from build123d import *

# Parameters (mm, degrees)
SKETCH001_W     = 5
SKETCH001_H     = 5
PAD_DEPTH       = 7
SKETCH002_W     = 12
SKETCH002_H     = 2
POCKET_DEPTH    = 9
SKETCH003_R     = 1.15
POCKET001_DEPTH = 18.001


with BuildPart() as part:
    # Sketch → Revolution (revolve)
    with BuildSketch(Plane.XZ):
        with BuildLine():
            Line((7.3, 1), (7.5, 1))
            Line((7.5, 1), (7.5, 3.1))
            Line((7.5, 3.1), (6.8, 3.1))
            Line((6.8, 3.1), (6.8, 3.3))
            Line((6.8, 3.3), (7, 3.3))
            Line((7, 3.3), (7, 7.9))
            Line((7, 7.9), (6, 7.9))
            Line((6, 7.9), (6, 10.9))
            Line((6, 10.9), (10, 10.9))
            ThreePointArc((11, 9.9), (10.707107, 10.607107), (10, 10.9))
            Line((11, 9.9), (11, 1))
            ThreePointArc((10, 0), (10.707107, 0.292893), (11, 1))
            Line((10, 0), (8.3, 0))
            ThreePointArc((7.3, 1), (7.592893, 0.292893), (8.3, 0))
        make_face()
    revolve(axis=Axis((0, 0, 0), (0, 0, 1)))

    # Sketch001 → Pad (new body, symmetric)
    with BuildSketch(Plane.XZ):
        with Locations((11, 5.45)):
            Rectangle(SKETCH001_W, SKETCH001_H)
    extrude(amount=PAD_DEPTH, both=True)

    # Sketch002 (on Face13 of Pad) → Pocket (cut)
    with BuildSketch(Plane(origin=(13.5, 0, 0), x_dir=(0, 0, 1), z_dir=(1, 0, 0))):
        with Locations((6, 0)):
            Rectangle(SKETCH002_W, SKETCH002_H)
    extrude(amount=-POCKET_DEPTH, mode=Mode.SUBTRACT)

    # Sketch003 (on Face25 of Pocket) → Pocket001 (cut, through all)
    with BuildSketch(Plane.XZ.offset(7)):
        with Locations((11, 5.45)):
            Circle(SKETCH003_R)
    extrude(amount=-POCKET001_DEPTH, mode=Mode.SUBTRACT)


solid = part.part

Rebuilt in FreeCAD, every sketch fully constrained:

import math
import FreeCAD as App
import Part
import Sketcher
from FreeCAD import Vector

doc = App.newDocument("Part")
params = doc.addObject("Spreadsheet::Sheet", "Params")
for row, (alias, value) in enumerate([
    ("sketch1_radius", "0.999999 mm"),
    ("sketch1_width", "4 mm"),
    ("sketch1_width2", "1 mm"),
    ("sketch1_height", "3 mm"),
    ("sketch1_width3", "0.2 mm"),
    ("revolution_angle", "360 deg"),
    ("sketch2_width", "5 mm"),
    ("pad1_length", "14 mm"),
    ("sketch3_width", "2 mm"),
    ("sketch3_height", "12 mm"),
    ("pocket1_length", "9 mm"),
    ("sketch4_diameter", "2.3 mm"),
], start=1):
    params.set(f"A{row}", alias)
    params.set(f"B{row}", "=" + value)
    params.setAlias(f"B{row}", alias)

body = doc.addObject("PartDesign::Body", "Body")

# Sketch on XZ plane
sketch1 = body.newObject("Sketcher::SketchObject", "Sketch")
sketch1.AttachmentSupport = (doc.getObject("XZ_Plane"), [""])
sketch1.MapMode = "FlatFace"
sketch1.addGeometry([
    Part.LineSegment(Vector(7.5, 1, 0), Vector(7.3, 1, 0)),  # 0
    Part.ArcOfCircle(Part.Circle(Vector(8.3, 1, 0), Vector(0, 0, 1), 1), math.radians(180), math.radians(270)),  # 1
    Part.LineSegment(Vector(8.3, 0, 0), Vector(10, 0, 0)),  # 2
    Part.ArcOfCircle(Part.Circle(Vector(10, 1, 0), Vector(0, 0, 1), 1), math.radians(-90), math.radians(0)),  # 3
    Part.LineSegment(Vector(11, 1, 0), Vector(11, 9.9, 0)),  # 4
    Part.ArcOfCircle(Part.Circle(Vector(10, 9.9, 0), Vector(0, 0, 1), 1), math.radians(0), math.radians(90)),  # 5
    Part.LineSegment(Vector(10, 10.9, 0), Vector(6, 10.9, 0)),  # 6
    Part.LineSegment(Vector(6, 10.9, 0), Vector(6, 7.9, 0)),  # 7
    Part.LineSegment(Vector(6, 7.9, 0), Vector(7, 7.9, 0)),  # 8
    Part.LineSegment(Vector(7, 7.9, 0), Vector(7, 3.3, 0)),  # 9
    Part.LineSegment(Vector(7, 3.3, 0), Vector(6.8, 3.3, 0)),  # 10
    Part.LineSegment(Vector(6.8, 3.3, 0), Vector(6.8, 3.1, 0)),  # 11
    Part.LineSegment(Vector(6.8, 3.1, 0), Vector(7.5, 3.1, 0)),  # 12
    Part.LineSegment(Vector(7.5, 3.1, 0), Vector(7.5, 1, 0)),  # 13
], False)
sketch1.addConstraint([
    Sketcher.Constraint("Coincident", 0, 2, 1, 1),
    Sketcher.Constraint("Tangent", 1, 2, 2, 1),
    Sketcher.Constraint("Tangent", 2, 2, 3, 1),
    Sketcher.Constraint("Tangent", 3, 2, 4, 1),
    Sketcher.Constraint("Tangent", 4, 2, 5, 1),
    Sketcher.Constraint("Tangent", 5, 2, 6, 1),
    Sketcher.Constraint("Coincident", 6, 2, 7, 1),
    Sketcher.Constraint("Coincident", 7, 2, 8, 1),
    Sketcher.Constraint("Coincident", 8, 2, 9, 1),
    Sketcher.Constraint("Coincident", 9, 2, 10, 1),
    Sketcher.Constraint("Coincident", 10, 2, 11, 1),
    Sketcher.Constraint("Coincident", 11, 2, 12, 1),
    Sketcher.Constraint("Coincident", 12, 2, 13, 1),
    Sketcher.Constraint("Coincident", 13, 2, 0, 1),
    Sketcher.Constraint("Horizontal", 0),
    Sketcher.Constraint("Horizontal", 2),
    Sketcher.Constraint("Vertical", 4),
    Sketcher.Constraint("Horizontal", 6),
    Sketcher.Constraint("Vertical", 7),
    Sketcher.Constraint("Horizontal", 8),
    Sketcher.Constraint("Vertical", 9),
    Sketcher.Constraint("Horizontal", 10),
    Sketcher.Constraint("Vertical", 11),
    Sketcher.Constraint("Horizontal", 12),
    Sketcher.Constraint("Vertical", 13),
    Sketcher.Constraint("Equal", 1, 3),
    Sketcher.Constraint("Equal", 3, 5),
    Sketcher.Constraint("PointOnObject", 1, 2, -1),
    Sketcher.Constraint("Horizontal", 3, 3, 0, 2),
    Sketcher.Constraint("Equal", 0, 10),
    Sketcher.Constraint("Equal", 10, 11),
    Sketcher.Constraint("Radius", 1, 0.999999),
    Sketcher.Constraint("DistanceX", 6, 2, 6, 1, 4.0),
    Sketcher.Constraint("DistanceX", 8, 1, 8, 2, 1.0),
    Sketcher.Constraint("DistanceY", 7, 2, 7, 1, 3.0),
    Sketcher.Constraint("DistanceX", 0, 2, 0, 1, 0.2),
    Sketcher.Constraint("DistanceX", 2, 1, 2, 2, 1.7),
    Sketcher.Constraint("DistanceY", 4, 1, 4, 2, 8.9),
    Sketcher.Constraint("DistanceY", 9, 2, 9, 1, 4.6),
    Sketcher.Constraint("DistanceX", -1, 1, 3, 3, 10.000001),
])
sketch1.setExpression("Constraints[31]", "Params.sketch1_radius")
sketch1.setExpression("Constraints[32]", "Params.sketch1_width")
sketch1.setExpression("Constraints[33]", "Params.sketch1_width2")
sketch1.setExpression("Constraints[34]", "Params.sketch1_height")
sketch1.setExpression("Constraints[35]", "Params.sketch1_width3")
revolution = body.newObject("PartDesign::Revolution", "Revolution")
revolution.Profile = sketch1
revolution.ReferenceAxis = (sketch1, ["V_Axis"])
revolution.setExpression("Angle", "Params.revolution_angle")

# Sketch on XZ plane
sketch2 = body.newObject("Sketcher::SketchObject", "Sketch001")
sketch2.AttachmentSupport = (doc.getObject("XZ_Plane"), [""])
sketch2.MapMode = "FlatFace"
sketch2.addGeometry([
    Part.LineSegment(Vector(8, 8, 0), Vector(8, 3, 0)),
    Part.LineSegment(Vector(8, 3, 0), Vector(14, 3, 0)),
    Part.LineSegment(Vector(14, 3, 0), Vector(14, 8, 0)),
    Part.LineSegment(Vector(14, 8, 0), Vector(8, 8, 0)),
], False)
sketch2.addConstraint([
    Sketcher.Constraint("Coincident", 0, 2, 1, 1),
    Sketcher.Constraint("Coincident", 1, 2, 2, 1),
    Sketcher.Constraint("Coincident", 2, 2, 3, 1),
    Sketcher.Constraint("Coincident", 3, 2, 0, 1),
    Sketcher.Constraint("Vertical", 0),
    Sketcher.Constraint("Horizontal", 1),
    Sketcher.Constraint("Vertical", 2),
    Sketcher.Constraint("Horizontal", 3),
    Sketcher.Constraint("Equal", 3, 0),
    Sketcher.Constraint("DistanceX", 1, 1, 1, 2, 5.0),
    Sketcher.Constraint("DistanceX", -1, 1, 0, 2, 8.5),
    Sketcher.Constraint("DistanceY", -1, 1, 0, 2, 2.95),
])
sketch2.setExpression("Constraints[9]", "Params.sketch2_width")
pad1 = body.newObject("PartDesign::Pad", "Pad")
pad1.Profile = sketch2
pad1.setExpression("Length", "Params.pad1_length")
pad1.Midplane = True

# Sketch on YZ plane
sketch3 = body.newObject("Sketcher::SketchObject", "Sketch002")
sketch3.AttachmentSupport = (doc.getObject("YZ_Plane"), [""])
sketch3.MapMode = "FlatFace"
sketch3.AttachmentOffset = App.Placement(Vector(0, 0, 13.5), App.Rotation())
sketch3.addGeometry([
    Part.LineSegment(Vector(-1, 0, 0), Vector(1, 0, 0)),
    Part.LineSegment(Vector(1, 0, 0), Vector(1, 12, 0)),
    Part.LineSegment(Vector(1, 12, 0), Vector(-1, 12, 0)),
    Part.LineSegment(Vector(-1, 12, 0), Vector(-1, 0, 0)),
], False)
sketch3.addConstraint([
    Sketcher.Constraint("Coincident", 0, 2, 1, 1),
    Sketcher.Constraint("Coincident", 1, 2, 2, 1),
    Sketcher.Constraint("Coincident", 2, 2, 3, 1),
    Sketcher.Constraint("Coincident", 3, 2, 0, 1),
    Sketcher.Constraint("Horizontal", 0),
    Sketcher.Constraint("Vertical", 1),
    Sketcher.Constraint("Horizontal", 2),
    Sketcher.Constraint("Vertical", 3),
    Sketcher.Constraint("Symmetric", 0, 2, 3, 2, -1, 1),
    Sketcher.Constraint("DistanceX", 0, 1, 0, 2, 2.0),
    Sketcher.Constraint("DistanceY", 1, 1, 1, 2, 12.0),
])
sketch3.setExpression("Constraints[9]", "Params.sketch3_width")
sketch3.setExpression("Constraints[10]", "Params.sketch3_height")
pocket1 = body.newObject("PartDesign::Pocket", "Pocket")
pocket1.Profile = sketch3
pocket1.setExpression("Length", "Params.pocket1_length")

# Sketch on XZ plane
sketch4 = body.newObject("Sketcher::SketchObject", "Sketch003")
sketch4.AttachmentSupport = (doc.getObject("XZ_Plane"), [""])
sketch4.MapMode = "FlatFace"
sketch4.AttachmentOffset = App.Placement(Vector(0, 0, 7), App.Rotation())
sketch4.addGeometry(Part.Circle(Vector(11, 5.5, 0), Vector(0, 0, 1), 1.1), False)
sketch4.addConstraint([
    Sketcher.Constraint("Diameter", 0, 2.3),
    Sketcher.Constraint("DistanceX", -1, 1, 0, 3, 11.0),
    Sketcher.Constraint("DistanceY", -1, 1, 0, 3, 5.45),
])
sketch4.setExpression("Constraints[0]", "Params.sketch4_diameter")
pocket2 = body.newObject("PartDesign::Pocket", "Pocket001")
pocket2.Profile = sketch4
pocket2.Type = "ThroughAll"

doc.recompute()
